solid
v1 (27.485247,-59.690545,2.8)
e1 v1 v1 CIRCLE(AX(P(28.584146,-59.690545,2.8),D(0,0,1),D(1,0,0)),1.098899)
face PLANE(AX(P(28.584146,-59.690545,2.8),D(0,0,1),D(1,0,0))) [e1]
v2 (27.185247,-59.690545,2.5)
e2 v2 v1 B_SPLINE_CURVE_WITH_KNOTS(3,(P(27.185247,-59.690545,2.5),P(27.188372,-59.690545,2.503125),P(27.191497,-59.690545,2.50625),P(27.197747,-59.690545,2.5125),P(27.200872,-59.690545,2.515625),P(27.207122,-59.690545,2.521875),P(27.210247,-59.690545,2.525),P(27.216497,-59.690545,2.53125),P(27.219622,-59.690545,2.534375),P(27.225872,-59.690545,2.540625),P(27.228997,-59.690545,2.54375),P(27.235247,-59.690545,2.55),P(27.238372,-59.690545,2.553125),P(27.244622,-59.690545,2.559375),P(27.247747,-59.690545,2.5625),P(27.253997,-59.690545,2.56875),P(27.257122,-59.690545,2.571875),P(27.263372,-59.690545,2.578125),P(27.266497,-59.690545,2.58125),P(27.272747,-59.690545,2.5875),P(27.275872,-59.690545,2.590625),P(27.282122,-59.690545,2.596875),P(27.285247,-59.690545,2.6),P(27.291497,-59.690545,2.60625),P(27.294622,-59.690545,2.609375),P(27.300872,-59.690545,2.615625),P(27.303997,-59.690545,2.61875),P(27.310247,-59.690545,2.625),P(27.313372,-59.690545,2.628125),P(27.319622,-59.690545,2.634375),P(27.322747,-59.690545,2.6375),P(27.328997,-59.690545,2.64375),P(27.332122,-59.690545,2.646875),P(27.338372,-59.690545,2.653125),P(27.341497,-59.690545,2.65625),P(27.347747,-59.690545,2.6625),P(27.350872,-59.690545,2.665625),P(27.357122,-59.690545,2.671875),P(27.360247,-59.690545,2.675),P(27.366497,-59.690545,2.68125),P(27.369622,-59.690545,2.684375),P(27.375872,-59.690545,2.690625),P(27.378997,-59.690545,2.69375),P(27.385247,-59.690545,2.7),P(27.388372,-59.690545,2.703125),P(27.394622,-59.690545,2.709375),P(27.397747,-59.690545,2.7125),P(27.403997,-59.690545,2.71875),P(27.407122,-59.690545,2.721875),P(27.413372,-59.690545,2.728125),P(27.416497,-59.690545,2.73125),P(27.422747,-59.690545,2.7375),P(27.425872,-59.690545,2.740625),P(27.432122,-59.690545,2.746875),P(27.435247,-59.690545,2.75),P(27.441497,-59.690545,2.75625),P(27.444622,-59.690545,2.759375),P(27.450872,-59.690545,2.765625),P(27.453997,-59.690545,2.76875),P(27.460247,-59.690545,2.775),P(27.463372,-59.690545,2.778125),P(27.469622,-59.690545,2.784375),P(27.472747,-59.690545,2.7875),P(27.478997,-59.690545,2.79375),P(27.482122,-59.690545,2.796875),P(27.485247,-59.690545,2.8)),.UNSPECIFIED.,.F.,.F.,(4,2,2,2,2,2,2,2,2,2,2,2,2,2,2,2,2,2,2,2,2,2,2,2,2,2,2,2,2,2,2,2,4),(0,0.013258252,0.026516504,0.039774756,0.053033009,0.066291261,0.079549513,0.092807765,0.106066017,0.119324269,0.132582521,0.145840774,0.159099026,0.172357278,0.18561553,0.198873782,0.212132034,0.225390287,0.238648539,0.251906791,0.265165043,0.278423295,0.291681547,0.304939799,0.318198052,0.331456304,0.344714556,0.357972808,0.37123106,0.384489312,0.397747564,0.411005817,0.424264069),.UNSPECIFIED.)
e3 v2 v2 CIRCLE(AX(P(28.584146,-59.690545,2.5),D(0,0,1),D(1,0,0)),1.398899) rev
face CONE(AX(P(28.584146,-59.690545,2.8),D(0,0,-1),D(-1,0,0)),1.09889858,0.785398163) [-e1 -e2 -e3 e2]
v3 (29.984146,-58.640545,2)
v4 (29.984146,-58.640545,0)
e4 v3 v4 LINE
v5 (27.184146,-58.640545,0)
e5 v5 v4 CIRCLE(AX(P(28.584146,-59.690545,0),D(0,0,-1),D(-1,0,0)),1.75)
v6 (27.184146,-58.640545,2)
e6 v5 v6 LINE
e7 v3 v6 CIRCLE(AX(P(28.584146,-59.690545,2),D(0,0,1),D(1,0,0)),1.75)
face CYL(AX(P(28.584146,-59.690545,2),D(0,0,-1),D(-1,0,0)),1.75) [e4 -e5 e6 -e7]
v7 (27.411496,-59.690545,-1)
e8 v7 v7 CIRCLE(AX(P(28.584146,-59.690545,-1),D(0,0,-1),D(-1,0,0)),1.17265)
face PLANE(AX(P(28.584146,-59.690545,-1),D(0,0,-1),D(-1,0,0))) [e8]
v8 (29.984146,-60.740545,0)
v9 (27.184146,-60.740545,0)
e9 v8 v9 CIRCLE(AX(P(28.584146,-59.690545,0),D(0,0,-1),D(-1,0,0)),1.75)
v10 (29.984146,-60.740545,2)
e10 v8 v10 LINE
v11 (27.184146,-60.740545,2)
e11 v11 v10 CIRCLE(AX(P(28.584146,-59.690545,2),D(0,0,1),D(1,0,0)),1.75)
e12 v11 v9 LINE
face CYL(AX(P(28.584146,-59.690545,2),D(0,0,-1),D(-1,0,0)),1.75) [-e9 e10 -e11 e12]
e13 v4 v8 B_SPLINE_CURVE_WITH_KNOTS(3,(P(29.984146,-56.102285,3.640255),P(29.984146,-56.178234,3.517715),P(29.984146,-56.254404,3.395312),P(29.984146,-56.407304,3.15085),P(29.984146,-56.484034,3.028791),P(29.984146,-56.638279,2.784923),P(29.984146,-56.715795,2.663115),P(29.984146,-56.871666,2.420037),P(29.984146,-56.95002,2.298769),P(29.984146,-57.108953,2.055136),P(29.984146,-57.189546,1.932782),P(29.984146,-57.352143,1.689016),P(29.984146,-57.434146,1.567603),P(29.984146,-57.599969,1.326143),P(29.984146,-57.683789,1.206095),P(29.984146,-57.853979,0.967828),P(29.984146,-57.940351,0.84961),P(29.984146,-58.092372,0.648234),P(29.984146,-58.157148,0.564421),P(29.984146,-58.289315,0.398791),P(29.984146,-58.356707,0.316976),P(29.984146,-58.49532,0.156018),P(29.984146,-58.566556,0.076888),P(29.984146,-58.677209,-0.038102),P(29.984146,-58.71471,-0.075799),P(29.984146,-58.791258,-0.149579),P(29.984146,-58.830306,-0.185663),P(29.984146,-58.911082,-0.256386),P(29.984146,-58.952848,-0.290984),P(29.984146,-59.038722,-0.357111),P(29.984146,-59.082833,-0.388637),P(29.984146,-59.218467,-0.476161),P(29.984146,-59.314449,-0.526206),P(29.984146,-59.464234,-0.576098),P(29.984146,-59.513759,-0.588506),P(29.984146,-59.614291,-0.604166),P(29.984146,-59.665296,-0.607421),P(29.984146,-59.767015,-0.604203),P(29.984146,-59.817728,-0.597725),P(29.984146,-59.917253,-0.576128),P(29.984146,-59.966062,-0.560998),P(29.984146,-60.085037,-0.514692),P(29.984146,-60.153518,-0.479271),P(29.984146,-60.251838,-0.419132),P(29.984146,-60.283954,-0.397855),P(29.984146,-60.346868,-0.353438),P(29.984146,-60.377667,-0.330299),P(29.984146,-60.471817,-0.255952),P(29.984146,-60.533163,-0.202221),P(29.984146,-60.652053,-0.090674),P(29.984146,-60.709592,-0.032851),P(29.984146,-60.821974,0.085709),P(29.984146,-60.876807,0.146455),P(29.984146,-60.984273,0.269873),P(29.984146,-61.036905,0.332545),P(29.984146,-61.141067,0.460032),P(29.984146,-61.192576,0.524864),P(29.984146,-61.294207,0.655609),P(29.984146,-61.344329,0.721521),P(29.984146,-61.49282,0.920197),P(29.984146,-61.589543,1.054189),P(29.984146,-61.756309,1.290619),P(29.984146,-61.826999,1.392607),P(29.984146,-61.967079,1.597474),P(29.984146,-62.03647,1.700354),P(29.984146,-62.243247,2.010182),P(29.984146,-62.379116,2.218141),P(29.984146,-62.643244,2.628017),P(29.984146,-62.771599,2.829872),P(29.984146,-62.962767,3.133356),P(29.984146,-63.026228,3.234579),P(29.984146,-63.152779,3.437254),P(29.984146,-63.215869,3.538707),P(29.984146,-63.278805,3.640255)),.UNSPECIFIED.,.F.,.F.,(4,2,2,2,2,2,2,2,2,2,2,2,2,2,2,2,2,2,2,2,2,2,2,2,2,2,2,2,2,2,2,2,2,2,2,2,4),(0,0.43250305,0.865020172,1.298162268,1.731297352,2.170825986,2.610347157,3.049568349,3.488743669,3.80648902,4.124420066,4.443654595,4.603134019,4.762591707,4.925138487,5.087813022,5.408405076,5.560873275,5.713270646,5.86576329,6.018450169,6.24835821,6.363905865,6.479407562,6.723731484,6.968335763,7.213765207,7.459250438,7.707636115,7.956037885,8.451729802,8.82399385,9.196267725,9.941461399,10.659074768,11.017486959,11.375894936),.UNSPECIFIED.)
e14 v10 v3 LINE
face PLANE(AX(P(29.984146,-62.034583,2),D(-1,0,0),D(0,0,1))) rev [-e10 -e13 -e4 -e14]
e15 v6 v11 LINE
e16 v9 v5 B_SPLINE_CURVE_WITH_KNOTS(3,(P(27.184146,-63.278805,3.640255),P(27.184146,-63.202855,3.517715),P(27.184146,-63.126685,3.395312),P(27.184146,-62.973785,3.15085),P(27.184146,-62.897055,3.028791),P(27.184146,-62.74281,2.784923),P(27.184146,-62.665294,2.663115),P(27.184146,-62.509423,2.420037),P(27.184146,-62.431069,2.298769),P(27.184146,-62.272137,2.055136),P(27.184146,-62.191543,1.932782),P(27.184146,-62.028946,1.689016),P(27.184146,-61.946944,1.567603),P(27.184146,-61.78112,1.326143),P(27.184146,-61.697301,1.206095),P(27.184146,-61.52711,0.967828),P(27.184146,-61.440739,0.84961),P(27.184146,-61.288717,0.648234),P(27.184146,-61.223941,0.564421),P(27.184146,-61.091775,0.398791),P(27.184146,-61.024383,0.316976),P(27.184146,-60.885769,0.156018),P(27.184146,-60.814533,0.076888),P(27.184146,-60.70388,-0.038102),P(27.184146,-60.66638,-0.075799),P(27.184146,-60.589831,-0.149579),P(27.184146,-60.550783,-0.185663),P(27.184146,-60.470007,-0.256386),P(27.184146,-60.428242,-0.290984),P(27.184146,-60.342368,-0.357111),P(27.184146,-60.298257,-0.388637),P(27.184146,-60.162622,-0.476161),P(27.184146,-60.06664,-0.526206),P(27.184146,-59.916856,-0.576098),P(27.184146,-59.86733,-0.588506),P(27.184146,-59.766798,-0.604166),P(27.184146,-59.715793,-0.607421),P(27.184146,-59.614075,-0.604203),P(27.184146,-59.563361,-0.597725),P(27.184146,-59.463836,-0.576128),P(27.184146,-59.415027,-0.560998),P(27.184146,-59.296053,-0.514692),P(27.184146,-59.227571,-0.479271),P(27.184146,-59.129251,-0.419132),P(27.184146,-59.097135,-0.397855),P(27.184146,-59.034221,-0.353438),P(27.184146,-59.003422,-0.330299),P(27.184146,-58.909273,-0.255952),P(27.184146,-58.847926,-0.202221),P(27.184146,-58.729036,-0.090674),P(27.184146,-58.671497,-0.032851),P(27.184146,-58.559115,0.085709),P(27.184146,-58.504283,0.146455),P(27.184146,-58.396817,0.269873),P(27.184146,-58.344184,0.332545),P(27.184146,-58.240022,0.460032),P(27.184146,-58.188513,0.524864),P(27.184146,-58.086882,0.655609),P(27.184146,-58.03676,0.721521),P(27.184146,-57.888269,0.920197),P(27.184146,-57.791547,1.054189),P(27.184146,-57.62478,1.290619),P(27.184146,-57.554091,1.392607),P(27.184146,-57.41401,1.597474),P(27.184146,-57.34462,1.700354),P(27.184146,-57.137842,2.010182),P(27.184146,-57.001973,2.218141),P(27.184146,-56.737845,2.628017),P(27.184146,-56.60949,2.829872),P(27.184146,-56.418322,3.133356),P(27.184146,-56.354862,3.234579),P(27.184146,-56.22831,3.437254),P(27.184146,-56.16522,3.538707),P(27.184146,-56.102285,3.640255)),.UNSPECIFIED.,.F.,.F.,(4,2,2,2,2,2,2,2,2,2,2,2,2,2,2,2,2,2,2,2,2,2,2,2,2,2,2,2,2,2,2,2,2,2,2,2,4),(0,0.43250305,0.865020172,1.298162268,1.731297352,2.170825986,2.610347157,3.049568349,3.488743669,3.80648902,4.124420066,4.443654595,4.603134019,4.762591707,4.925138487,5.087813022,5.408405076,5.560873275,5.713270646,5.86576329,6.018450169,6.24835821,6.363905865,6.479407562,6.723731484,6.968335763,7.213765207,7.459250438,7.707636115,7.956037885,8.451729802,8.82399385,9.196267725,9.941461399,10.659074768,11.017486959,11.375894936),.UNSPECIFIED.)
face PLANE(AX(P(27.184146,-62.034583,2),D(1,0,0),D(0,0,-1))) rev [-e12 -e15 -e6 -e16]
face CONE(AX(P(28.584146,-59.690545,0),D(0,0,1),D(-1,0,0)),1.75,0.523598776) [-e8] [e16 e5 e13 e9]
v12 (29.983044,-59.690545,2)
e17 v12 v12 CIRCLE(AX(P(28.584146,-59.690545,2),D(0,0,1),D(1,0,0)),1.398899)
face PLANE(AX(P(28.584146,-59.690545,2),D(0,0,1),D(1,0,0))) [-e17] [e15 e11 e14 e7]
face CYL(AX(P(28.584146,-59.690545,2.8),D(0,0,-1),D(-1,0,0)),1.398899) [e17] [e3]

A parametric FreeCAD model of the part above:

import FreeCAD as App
import Part
import Sketcher
from FreeCAD import Vector


def edges_at(feature, points):
    """Names of the edges that pass closest to the given points."""
    edges = feature.Shape.Edges
    near = lambda p: min(range(len(edges)), key=lambda i: edges[i].distToShape(Part.Vertex(*p))[0])
    return sorted({f"Edge{near(p) + 1}" for p in points})


def add_polygon(sketch, points):
    """Adds a closed chain of lines whose ends are joined by coincident constraints."""
    first, n = sketch.GeometryCount, len(points)
    for a, b in zip(points, points[1:] + points[:1]):
        sketch.addGeometry(Part.LineSegment(App.Vector(*a, 0), App.Vector(*b, 0)), False)
    for i in range(n):
        sketch.addConstraint(Sketcher.Constraint("Coincident", first + i, 2, first + (i + 1) % n, 1))

doc = App.newDocument("Part")
body = doc.addObject("PartDesign::Body", "Body")

# Sketch on XY plane
sketch1 = doc.addObject("Sketcher::SketchObject", "Sketch")
body.addObject(sketch1)
sketch1.AttachmentSupport = (doc.XY_Plane, [""])
sketch1.MapMode = "FlatFace"
sketch1.addGeometry(Part.Circle(Vector(28.6, -59.7, 0), Vector(0, 0, 1), 1.8), False)
sketch1.addConstraint(Sketcher.Constraint("Diameter", 0, 3.5))
sketch1.addConstraint(Sketcher.Constraint("DistanceX", -1, 1, 0, 3, 28.584146))
sketch1.addConstraint(Sketcher.Constraint("DistanceY", 0, 3, -1, 1, 59.690545))
pad1 = doc.addObject("PartDesign::Pad", "Pad")
body.addObject(pad1)
pad1.Profile = sketch1
pad1.Length = 2

# Sketch on XY plane
sketch2 = doc.addObject("Sketcher::SketchObject", "Sketch001")
body.addObject(sketch2)
sketch2.AttachmentSupport = (doc.XY_Plane, [""])
sketch2.MapMode = "FlatFace"
sketch2.AttachmentOffset = App.Placement(Vector(0, 0, 2), App.Rotation())
sketch2.addGeometry(Part.Circle(Vector(28.6, -59.7, 0), Vector(0, 0, 1), 1.4), False)
sketch2.addConstraint(Sketcher.Constraint("Diameter", 0, 2.797797))
sketch2.addConstraint(Sketcher.Constraint("DistanceX", -1, 1, 0, 3, 28.584146))
sketch2.addConstraint(Sketcher.Constraint("DistanceY", 0, 3, -1, 1, 59.690545))
pad2 = doc.addObject("PartDesign::Pad", "Pad001")
body.addObject(pad2)
pad2.Profile = sketch2
pad2.Length = 0.8
doc.recompute()

chamfer = doc.addObject("PartDesign::Chamfer", "Chamfer")
body.addObject(chamfer)
chamfer.Base = (pad2, edges_at(pad2, [(27.185, -59.691, 2.8)]))
chamfer.Size = 0.3

# Sketch on XY plane
sketch3 = doc.addObject("Sketcher::SketchObject", "Sketch002")
body.addObject(sketch3)
sketch3.AttachmentSupport = (doc.XY_Plane, [""])
sketch3.MapMode = "FlatFace"
sketch3.addGeometry(Part.Circle(Vector(28.6, -59.7, 0), Vector(0, 0, 1), 1.8), False)
sketch3.addConstraint(Sketcher.Constraint("Diameter", 0, 3.5))
sketch3.addConstraint(Sketcher.Constraint("DistanceX", -1, 1, 0, 3, 28.584146))
sketch3.addConstraint(Sketcher.Constraint("DistanceY", 0, 3, -1, 1, 59.690545))
pad3 = doc.addObject("PartDesign::Pad", "Pad002")
body.addObject(pad3)
pad3.Profile = sketch3
pad3.Length = 1
pad3.Reversed = True
pad3.TaperAngle = -30

# Sketch on XY plane
sketch4 = doc.addObject("Sketcher::SketchObject", "Sketch003")
body.addObject(sketch4)
sketch4.AttachmentSupport = (doc.XY_Plane, [""])
sketch4.MapMode = "FlatFace"
sketch4.AttachmentOffset = App.Placement(Vector(0, 0, -1), App.Rotation())
add_polygon(sketch4, [(27.2, -57.6), (27.2, -62), (25.7, -62), (25.7, -57.6)])  # lines 0-3
add_polygon(sketch4, [(31.5, -57.6), (31.5, -62), (30, -62), (30, -57.6)])  # lines 4-7
sketch4.addConstraint(Sketcher.Constraint("Vertical", 0))
sketch4.addConstraint(Sketcher.Constraint("Horizontal", 1))
sketch4.addConstraint(Sketcher.Constraint("Vertical", 2))
sketch4.addConstraint(Sketcher.Constraint("Horizontal", 3))
sketch4.addConstraint(Sketcher.Constraint("Vertical", 4))
sketch4.addConstraint(Sketcher.Constraint("Horizontal", 5))
sketch4.addConstraint(Sketcher.Constraint("Vertical", 6))
sketch4.addConstraint(Sketcher.Constraint("Horizontal", 7))
sketch4.addConstraint(Sketcher.Constraint("Horizontal", 1, 2, 4, 2))
sketch4.addConstraint(Sketcher.Constraint("Horizontal", 3, 2, 6, 2))
sketch4.addConstraint(Sketcher.Constraint("DistanceX", 0, 2, 5, 2, 2.8))
sketch4.addConstraint(Sketcher.Constraint("DistanceX", 1, 2, 1, 1, 1.530864))
sketch4.addConstraint(Sketcher.Constraint("DistanceX", 5, 2, 5, 1, 1.518367))
sketch4.addConstraint(Sketcher.Constraint("DistanceY", 0, 2, 0, 1, 4.455128))
sketch4.addConstraint(Sketcher.Constraint("DistanceX", -1, 1, 1, 2, 25.653281))
sketch4.addConstraint(Sketcher.Constraint("DistanceY", 0, 2, -1, 1, 62.034583))
pocket1 = doc.addObject("PartDesign::Pocket", "Pocket")
body.addObject(pocket1)
pocket1.Profile = sketch4
pocket1.Length = 3
pocket1.Reversed = True

doc.recompute()
